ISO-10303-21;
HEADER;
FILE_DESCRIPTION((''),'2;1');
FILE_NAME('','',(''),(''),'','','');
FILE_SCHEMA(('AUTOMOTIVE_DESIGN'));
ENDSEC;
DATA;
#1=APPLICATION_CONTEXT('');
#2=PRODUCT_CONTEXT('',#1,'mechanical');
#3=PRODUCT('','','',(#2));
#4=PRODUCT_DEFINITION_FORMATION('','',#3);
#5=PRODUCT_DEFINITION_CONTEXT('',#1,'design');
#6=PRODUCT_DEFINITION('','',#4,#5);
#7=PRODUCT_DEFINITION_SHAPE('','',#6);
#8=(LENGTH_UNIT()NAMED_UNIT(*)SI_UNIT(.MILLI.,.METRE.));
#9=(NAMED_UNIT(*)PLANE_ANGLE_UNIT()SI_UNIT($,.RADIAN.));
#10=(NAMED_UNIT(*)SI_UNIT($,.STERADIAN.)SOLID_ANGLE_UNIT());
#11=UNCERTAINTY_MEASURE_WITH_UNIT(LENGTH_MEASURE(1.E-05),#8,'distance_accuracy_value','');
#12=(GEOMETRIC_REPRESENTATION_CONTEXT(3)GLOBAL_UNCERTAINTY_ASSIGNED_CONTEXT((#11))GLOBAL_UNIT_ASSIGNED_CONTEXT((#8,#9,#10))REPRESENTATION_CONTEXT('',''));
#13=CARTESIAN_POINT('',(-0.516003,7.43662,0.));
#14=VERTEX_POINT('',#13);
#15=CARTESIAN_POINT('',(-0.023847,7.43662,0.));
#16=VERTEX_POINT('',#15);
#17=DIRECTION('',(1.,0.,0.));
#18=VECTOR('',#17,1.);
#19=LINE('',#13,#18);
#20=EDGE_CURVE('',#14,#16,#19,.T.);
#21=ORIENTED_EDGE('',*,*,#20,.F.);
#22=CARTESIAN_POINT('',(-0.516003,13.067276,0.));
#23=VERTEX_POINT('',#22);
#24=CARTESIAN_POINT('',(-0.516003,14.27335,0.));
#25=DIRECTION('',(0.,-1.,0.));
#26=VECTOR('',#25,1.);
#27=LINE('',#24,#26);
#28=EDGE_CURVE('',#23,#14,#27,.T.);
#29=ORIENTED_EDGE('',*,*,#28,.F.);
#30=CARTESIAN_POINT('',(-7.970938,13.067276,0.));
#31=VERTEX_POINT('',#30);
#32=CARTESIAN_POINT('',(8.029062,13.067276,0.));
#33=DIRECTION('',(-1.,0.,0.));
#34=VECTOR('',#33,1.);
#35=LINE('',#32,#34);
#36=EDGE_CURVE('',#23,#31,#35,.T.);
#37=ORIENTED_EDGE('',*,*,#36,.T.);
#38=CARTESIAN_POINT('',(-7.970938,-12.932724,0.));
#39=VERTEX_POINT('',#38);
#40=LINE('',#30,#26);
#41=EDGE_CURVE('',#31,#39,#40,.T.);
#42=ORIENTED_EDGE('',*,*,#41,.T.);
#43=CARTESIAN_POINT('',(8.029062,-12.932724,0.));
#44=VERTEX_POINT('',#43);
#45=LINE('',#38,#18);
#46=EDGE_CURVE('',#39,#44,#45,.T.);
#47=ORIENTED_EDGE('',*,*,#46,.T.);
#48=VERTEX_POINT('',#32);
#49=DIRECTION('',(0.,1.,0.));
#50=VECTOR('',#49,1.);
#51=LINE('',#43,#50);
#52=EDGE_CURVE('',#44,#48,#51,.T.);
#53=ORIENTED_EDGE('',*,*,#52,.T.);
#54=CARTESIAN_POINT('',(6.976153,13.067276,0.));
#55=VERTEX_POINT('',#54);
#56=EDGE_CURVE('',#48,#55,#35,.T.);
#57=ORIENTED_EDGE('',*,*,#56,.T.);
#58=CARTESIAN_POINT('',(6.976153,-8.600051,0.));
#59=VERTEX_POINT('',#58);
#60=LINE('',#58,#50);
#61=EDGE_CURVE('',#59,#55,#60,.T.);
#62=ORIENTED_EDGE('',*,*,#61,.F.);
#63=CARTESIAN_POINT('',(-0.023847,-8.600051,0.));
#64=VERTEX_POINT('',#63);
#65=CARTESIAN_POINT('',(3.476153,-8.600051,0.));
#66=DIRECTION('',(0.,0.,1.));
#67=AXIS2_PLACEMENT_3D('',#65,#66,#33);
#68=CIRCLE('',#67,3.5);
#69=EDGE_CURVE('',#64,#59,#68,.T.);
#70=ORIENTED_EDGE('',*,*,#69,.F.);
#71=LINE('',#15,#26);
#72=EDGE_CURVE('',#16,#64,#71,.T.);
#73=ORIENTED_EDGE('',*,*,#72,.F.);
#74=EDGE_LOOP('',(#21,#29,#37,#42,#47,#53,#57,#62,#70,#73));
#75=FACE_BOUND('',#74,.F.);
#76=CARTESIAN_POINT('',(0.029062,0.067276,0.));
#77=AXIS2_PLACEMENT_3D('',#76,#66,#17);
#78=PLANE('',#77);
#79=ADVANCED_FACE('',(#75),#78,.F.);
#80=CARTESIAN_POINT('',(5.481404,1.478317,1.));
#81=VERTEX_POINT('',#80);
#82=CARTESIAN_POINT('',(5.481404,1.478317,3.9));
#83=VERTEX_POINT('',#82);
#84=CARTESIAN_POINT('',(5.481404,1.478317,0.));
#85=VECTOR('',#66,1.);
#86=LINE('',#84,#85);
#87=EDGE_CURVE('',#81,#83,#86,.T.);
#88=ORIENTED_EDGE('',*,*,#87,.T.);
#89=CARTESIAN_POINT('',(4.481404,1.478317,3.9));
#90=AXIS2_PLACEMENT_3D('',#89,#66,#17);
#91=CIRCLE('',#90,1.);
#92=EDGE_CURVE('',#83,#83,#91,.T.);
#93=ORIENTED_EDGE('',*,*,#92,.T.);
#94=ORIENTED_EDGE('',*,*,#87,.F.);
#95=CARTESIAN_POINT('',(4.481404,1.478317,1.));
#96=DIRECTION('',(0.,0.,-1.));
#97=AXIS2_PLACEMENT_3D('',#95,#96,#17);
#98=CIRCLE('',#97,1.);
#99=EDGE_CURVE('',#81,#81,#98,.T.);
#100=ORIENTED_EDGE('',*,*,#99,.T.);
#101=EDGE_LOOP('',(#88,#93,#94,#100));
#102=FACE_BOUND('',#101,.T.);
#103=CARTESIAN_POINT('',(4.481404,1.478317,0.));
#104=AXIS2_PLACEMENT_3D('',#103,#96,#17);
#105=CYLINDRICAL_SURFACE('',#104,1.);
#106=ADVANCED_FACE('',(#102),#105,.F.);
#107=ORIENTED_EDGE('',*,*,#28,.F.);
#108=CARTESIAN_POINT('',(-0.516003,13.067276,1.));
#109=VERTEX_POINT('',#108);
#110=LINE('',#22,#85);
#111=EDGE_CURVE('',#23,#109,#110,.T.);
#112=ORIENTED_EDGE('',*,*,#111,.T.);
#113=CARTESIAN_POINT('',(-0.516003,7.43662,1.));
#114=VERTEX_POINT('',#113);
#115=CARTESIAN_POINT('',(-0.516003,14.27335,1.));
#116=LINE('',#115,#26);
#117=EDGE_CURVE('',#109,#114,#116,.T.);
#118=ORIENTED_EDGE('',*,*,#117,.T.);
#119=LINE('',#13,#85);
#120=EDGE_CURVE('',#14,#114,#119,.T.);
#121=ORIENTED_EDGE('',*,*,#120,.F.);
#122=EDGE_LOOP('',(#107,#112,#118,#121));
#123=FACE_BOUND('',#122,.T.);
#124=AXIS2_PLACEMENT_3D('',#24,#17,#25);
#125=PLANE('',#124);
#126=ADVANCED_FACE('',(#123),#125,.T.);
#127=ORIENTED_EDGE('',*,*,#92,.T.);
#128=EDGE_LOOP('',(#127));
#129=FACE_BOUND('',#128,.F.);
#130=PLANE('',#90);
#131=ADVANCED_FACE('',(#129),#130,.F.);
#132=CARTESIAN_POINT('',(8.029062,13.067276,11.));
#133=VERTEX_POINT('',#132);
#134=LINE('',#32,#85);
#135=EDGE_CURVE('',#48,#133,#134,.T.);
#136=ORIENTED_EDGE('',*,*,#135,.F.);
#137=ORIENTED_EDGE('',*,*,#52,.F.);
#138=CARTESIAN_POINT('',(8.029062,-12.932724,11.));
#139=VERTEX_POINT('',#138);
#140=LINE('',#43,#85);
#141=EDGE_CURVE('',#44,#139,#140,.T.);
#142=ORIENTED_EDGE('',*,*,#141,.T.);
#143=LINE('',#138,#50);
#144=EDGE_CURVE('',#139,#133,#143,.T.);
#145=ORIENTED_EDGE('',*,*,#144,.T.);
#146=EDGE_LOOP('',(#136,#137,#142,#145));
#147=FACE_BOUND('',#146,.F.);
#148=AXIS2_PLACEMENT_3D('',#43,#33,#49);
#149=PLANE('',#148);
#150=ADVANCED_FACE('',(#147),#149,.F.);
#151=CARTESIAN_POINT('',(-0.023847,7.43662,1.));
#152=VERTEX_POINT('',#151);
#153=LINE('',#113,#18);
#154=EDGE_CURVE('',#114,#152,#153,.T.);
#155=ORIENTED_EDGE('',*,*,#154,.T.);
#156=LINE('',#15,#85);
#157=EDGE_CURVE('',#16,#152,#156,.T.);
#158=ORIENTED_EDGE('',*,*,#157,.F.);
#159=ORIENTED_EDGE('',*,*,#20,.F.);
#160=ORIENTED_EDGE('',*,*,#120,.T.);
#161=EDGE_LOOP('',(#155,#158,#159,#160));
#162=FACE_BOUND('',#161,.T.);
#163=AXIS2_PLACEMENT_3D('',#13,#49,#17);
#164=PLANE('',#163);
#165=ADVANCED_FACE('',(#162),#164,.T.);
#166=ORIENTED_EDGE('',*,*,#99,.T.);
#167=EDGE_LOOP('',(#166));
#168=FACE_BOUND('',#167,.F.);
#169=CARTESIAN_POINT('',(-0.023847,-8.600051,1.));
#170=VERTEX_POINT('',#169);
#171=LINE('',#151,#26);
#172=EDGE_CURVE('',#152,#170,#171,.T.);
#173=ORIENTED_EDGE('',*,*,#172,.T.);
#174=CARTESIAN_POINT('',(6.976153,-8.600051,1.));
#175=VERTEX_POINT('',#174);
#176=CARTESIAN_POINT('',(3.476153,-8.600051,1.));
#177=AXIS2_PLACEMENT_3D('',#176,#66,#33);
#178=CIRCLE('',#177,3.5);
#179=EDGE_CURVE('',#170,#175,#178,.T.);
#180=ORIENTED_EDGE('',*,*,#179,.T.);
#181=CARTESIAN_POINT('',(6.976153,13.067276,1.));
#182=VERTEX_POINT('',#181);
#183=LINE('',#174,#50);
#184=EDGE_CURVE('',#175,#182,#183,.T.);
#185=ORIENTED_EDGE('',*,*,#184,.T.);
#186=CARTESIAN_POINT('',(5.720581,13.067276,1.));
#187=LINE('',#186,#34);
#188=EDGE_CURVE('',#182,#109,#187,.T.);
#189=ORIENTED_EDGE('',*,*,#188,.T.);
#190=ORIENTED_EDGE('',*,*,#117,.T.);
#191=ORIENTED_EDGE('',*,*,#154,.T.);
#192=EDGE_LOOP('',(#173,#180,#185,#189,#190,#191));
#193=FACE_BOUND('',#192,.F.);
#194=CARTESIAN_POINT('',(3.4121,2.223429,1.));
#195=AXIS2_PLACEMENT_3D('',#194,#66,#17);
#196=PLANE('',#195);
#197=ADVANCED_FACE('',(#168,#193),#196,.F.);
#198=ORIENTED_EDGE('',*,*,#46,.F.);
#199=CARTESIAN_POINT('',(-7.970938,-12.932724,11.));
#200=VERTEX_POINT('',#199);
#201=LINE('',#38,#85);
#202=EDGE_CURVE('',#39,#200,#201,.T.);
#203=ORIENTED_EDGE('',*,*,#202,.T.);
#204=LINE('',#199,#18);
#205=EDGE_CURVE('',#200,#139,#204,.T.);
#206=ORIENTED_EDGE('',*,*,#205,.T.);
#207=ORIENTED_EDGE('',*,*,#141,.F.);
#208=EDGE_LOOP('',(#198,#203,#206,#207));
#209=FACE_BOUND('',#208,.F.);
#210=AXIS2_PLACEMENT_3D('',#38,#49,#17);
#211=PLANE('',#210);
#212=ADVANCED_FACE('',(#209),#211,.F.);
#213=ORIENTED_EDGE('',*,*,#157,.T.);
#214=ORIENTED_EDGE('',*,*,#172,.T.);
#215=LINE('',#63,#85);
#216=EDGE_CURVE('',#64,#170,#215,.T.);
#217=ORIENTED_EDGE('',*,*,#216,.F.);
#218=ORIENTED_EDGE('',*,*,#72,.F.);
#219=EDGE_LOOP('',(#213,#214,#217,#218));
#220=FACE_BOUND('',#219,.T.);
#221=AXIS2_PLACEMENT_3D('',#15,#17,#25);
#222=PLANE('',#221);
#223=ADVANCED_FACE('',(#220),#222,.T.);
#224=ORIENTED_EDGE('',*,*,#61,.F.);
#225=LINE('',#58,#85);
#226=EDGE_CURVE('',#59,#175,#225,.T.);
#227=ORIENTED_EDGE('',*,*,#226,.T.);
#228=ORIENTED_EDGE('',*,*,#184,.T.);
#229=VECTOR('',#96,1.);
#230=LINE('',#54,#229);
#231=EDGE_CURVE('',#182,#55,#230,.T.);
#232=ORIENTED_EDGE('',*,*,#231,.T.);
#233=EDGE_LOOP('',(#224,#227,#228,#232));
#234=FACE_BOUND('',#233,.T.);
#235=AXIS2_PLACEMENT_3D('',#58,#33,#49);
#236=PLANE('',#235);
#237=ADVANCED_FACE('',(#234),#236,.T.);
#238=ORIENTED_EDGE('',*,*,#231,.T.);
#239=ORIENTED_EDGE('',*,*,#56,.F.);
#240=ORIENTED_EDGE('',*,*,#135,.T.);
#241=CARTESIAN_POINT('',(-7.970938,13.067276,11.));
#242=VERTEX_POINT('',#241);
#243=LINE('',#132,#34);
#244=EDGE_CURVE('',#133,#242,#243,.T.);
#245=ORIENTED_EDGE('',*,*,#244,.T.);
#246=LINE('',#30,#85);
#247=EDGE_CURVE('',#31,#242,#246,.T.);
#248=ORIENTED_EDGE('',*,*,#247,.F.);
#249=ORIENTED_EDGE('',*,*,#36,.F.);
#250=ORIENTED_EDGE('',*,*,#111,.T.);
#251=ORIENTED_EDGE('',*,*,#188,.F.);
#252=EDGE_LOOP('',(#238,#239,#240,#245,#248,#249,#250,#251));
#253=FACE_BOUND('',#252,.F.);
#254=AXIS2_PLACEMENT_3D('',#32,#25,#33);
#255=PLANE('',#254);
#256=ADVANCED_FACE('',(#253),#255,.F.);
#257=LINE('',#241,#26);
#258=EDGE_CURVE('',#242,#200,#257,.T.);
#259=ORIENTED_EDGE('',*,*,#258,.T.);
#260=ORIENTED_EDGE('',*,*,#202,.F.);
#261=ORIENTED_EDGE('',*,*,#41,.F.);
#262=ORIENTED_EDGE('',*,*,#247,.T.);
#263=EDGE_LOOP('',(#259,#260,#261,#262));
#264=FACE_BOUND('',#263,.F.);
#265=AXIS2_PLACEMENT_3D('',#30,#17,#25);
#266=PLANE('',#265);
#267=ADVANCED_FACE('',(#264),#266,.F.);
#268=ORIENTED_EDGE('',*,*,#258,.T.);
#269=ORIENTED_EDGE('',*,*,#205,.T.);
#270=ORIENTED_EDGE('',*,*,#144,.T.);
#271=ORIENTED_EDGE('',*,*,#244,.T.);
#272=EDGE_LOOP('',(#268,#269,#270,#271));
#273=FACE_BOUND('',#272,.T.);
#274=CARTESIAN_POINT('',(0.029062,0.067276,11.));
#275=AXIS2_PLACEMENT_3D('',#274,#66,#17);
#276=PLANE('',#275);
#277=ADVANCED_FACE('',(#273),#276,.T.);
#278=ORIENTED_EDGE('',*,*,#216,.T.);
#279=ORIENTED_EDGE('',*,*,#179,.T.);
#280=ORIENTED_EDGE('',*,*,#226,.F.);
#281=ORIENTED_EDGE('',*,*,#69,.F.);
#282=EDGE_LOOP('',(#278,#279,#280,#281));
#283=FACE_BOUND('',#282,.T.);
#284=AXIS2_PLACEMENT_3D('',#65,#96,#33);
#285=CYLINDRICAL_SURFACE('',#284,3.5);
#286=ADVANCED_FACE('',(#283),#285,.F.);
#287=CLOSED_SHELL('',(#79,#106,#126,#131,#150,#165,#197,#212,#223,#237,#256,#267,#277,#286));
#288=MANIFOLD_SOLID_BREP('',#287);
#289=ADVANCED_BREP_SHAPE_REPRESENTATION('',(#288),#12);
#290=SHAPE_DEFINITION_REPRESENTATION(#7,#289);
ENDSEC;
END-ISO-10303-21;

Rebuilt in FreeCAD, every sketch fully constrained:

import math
import FreeCAD as App
import Part
import Sketcher

V = App.Vector

doc = App.newDocument("Part")
params = doc.addObject("Spreadsheet::Sheet", "Params")
for row, (alias, value) in enumerate([
    ("sketch1_width", "16 mm"),
    ("sketch1_height", "26 mm"),
    ("pad1_length", "11 mm"),
    ("sketch2_radius", "3.5 mm"),
    ("pocket1_length", "1 mm"),
    ("sketch3_diameter", "2 mm"),
    ("pocket2_length", "3.9 mm"),
], start=1):
    params.set(f"A{row}", alias)
    params.set(f"B{row}", "=" + value)
    params.setAlias(f"B{row}", alias)

body = doc.addObject("PartDesign::Body", "Body")

sketch1 = doc.addObject("Sketcher::SketchObject", "Sketch")
body.addObject(sketch1)
sketch1.AttachmentSupport = (doc.XY_Plane, [""])
sketch1.MapMode = "FlatFace"
sketch1.addGeometry([
    Part.LineSegment(V(-8, -13, 0), V(8, -13, 0)),
    Part.LineSegment(V(8, -13, 0), V(8, 13, 0)),
    Part.LineSegment(V(8, 13, 0), V(-8, 13, 0)),
    Part.LineSegment(V(-8, 13, 0), V(-8, -13, 0)),
], False)
sketch1.addConstraint([
    Sketcher.Constraint("Coincident", 0, 2, 1, 1),
    Sketcher.Constraint("Coincident", 1, 2, 2, 1),
    Sketcher.Constraint("Coincident", 2, 2, 3, 1),
    Sketcher.Constraint("Coincident", 3, 2, 0, 1),
    Sketcher.Constraint("Horizontal", 0),
    Sketcher.Constraint("Vertical", 1),
    Sketcher.Constraint("Horizontal", 2),
    Sketcher.Constraint("Vertical", 3),
    Sketcher.Constraint("DistanceX", 0, 1, 0, 2, 16.0),
    Sketcher.Constraint("DistanceY", 1, 1, 1, 2, 26.0),
    Sketcher.Constraint("DistanceX", 2, 2, -1, 1, 7.970938),
    Sketcher.Constraint("DistanceY", 0, 2, -1, 1, 12.932724),
])
sketch1.setExpression("Constraints[8]", "Params.sketch1_width")
sketch1.setExpression("Constraints[9]", "Params.sketch1_height")
pad1 = doc.addObject("PartDesign::Pad", "Pad")
body.addObject(pad1)
pad1.Profile = sketch1
pad1.setExpression("Length", "Params.pad1_length")

sketch2 = doc.addObject("Sketcher::SketchObject", "Sketch001")
body.addObject(sketch2)
sketch2.AttachmentSupport = (doc.XY_Plane, [""])
sketch2.MapMode = "FlatFace"
sketch2.addGeometry([
    Part.LineSegment(V(-0.02, 7.44, 0), V(-0.02, -8.6, 0)),
    Part.ArcOfCircle(Part.Circle(V(3.48, -8.6, 0), V(0, 0, 1), 3.5), math.radians(180), math.radians(360)),
    Part.LineSegment(V(6.98, -8.6, 0), V(6.98, 15.1, 0)),
    Part.LineSegment(V(6.98, 15.1, 0), V(-0.52, 14.27, 0)),
    Part.LineSegment(V(-0.52, 14.27, 0), V(-0.52, 7.44, 0)),
    Part.LineSegment(V(-0.52, 7.44, 0), V(-0.02, 7.44, 0)),
], False)
sketch2.addConstraint([
    Sketcher.Constraint("Tangent", 0, 2, 1, 1),
    Sketcher.Constraint("Tangent", 1, 2, 2, 1),
    Sketcher.Constraint("Coincident", 2, 2, 3, 1),
    Sketcher.Constraint("Coincident", 3, 2, 4, 1),
    Sketcher.Constraint("Coincident", 4, 2, 5, 1),
    Sketcher.Constraint("Coincident", 5, 2, 0, 1),
    Sketcher.Constraint("Vertical", 0),
    Sketcher.Constraint("Vertical", 2),
    Sketcher.Constraint("Vertical", 4),
    Sketcher.Constraint("Horizontal", 5),
    Sketcher.Constraint("Radius", 1, 3.5),
    Sketcher.Constraint("DistanceY", 0, 2, 0, 1, 16.036671),
    Sketcher.Constraint("DistanceY", 2, 1, 2, 2, 23.70003),
    Sketcher.Constraint("DistanceY", 4, 2, 4, 1, 6.83673),
    Sketcher.Constraint("Distance", 3, 7.53762),
    Sketcher.Constraint("DistanceY", 1, 3, -1, 1, 8.600051),
    Sketcher.Constraint("DistanceX", -1, 1, 1, 3, 3.476153),
])
sketch2.setExpression("Constraints[10]", "Params.sketch2_radius")
pocket1 = doc.addObject("PartDesign::Pocket", "Pocket")
body.addObject(pocket1)
pocket1.Profile = sketch2
pocket1.setExpression("Length", "Params.pocket1_length")
pocket1.Reversed = True

sketch3 = doc.addObject("Sketcher::SketchObject", "Sketch002")
body.addObject(sketch3)
sketch3.AttachmentSupport = (doc.XY_Plane, [""])
sketch3.MapMode = "FlatFace"
sketch3.addGeometry(Part.Circle(V(4.5, 1.5, 0), V(0, 0, 1), 1), False)
sketch3.addConstraint([
    Sketcher.Constraint("Diameter", 0, 2.0),
    Sketcher.Constraint("DistanceX", -1, 1, 0, 3, 4.481404),
    Sketcher.Constraint("DistanceY", -1, 1, 0, 3, 1.478317),
])
sketch3.setExpression("Constraints[0]", "Params.sketch3_diameter")
pocket2 = doc.addObject("PartDesign::Pocket", "Pocket001")
body.addObject(pocket2)
pocket2.Profile = sketch3
pocket2.setExpression("Length", "Params.pocket2_length")
pocket2.Reversed = True

doc.recompute()
